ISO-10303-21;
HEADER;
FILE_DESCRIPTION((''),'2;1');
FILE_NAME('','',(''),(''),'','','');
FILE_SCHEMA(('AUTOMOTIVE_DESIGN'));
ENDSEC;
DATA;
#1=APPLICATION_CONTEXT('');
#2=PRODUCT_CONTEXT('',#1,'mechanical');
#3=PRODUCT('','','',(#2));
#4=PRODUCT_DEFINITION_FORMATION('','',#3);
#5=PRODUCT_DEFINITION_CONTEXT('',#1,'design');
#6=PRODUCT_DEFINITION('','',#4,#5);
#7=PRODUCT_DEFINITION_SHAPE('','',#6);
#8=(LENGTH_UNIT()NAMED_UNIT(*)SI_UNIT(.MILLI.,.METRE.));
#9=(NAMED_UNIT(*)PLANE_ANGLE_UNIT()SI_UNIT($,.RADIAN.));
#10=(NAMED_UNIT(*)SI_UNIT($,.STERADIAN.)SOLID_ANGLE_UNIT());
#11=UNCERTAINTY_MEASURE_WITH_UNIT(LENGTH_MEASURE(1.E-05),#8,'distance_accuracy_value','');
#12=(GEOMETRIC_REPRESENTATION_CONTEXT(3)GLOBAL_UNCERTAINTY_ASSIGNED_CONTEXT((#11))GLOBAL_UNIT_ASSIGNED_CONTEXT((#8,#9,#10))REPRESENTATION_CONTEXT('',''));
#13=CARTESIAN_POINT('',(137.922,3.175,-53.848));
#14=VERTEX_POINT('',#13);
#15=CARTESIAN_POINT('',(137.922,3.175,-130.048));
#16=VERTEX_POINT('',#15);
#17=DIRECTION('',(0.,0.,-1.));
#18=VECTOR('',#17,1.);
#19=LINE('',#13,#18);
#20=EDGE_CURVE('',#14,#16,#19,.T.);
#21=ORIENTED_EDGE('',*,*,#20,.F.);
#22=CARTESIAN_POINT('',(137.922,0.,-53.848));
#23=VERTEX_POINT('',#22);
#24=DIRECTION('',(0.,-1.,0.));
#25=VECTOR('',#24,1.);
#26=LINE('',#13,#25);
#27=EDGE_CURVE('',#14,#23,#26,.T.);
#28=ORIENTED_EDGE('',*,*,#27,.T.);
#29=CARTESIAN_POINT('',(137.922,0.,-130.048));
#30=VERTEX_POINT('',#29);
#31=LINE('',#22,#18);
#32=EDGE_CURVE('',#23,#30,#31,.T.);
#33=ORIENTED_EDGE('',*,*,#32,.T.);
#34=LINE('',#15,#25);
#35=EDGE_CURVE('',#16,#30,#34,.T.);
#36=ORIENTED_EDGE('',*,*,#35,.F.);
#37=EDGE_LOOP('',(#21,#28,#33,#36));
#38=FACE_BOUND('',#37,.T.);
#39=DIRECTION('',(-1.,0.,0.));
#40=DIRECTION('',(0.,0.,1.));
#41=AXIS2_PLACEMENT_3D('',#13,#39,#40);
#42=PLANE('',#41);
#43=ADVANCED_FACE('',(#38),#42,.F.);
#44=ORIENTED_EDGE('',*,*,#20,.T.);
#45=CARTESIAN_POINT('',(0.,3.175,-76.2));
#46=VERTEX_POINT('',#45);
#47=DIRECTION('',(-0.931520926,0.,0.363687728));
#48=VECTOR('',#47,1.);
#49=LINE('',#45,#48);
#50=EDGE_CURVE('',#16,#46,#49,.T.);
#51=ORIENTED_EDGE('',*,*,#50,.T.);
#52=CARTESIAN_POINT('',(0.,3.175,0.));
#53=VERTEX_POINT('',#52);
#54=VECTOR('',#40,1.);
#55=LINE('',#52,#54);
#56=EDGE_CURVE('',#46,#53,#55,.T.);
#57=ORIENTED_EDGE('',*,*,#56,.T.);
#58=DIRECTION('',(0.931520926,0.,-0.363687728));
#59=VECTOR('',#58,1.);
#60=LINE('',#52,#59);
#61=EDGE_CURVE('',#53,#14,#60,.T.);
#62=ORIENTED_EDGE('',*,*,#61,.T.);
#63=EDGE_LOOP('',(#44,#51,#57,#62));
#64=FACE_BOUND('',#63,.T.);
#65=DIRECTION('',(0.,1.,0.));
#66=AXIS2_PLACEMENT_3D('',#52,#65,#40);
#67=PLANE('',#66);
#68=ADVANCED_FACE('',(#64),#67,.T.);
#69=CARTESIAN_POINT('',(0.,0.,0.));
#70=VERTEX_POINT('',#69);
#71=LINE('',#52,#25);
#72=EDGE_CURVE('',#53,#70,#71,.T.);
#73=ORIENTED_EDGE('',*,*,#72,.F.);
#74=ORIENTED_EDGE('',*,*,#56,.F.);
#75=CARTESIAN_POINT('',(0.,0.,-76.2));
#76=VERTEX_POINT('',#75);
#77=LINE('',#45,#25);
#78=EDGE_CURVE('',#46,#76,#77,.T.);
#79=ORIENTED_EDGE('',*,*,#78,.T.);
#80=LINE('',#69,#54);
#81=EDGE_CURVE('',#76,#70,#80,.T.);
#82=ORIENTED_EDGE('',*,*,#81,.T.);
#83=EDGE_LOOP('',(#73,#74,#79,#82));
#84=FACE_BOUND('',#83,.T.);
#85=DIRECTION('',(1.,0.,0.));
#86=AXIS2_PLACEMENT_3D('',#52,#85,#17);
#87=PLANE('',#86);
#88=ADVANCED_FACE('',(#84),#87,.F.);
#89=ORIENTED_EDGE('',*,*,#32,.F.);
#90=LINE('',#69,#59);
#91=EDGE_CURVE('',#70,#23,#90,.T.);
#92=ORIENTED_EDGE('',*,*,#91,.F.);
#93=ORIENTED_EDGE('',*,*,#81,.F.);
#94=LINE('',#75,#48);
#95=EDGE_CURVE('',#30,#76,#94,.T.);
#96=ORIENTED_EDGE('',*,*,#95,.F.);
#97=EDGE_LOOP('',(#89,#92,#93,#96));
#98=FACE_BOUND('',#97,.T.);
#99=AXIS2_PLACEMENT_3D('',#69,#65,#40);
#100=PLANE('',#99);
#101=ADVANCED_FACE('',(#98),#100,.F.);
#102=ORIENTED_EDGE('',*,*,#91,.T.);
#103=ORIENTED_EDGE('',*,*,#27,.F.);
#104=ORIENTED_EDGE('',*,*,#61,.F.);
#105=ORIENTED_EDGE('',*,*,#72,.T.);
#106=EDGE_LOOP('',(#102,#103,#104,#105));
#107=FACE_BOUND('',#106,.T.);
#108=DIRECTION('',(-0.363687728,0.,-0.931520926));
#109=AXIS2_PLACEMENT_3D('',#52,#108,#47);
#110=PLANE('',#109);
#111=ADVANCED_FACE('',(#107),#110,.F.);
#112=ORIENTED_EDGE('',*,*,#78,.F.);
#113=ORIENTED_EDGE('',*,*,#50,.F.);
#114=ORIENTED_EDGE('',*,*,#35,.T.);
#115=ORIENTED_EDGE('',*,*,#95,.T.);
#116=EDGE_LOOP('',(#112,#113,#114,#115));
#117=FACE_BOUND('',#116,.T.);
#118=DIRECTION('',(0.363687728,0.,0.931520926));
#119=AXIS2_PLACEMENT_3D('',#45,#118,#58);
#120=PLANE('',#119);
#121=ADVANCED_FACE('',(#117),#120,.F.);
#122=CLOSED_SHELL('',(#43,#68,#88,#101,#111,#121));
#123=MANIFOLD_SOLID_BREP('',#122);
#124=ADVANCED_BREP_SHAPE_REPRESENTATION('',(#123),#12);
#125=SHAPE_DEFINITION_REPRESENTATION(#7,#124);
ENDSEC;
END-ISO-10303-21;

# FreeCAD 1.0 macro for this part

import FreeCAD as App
import Part
import Sketcher

V = App.Vector
Q = App.Units.Quantity

doc = App.newDocument("Part")
body = doc.addObject("PartDesign::Body", "Body")

# Sketch on XZ plane
sketch1 = body.newObject("Sketcher::SketchObject", "Sketch")
sketch1.AttachmentSupport = (doc.getObject("XZ_Plane"), [""])
sketch1.MapMode = "FlatFace"
sketch1.addGeometry(Part.LineSegment(V(0, -76, 0), V(0, 0, 0)), False)
sketch1.addGeometry(Part.LineSegment(V(0, 0, 0), V(138, -54, 0)), False)
sketch1.addGeometry(Part.LineSegment(V(138, -54, 0), V(138, -130, 0)), False)
sketch1.addGeometry(Part.LineSegment(V(138, -130, 0), V(0, -76, 0)), False)
sketch1.addConstraint(Sketcher.Constraint("Coincident", 0, 2, 1, 1))
sketch1.addConstraint(Sketcher.Constraint("Coincident", 1, 2, 2, 1))
sketch1.addConstraint(Sketcher.Constraint("Coincident", 2, 2, 3, 1))
sketch1.addConstraint(Sketcher.Constraint("Coincident", 3, 2, 0, 1))
sketch1.addConstraint(Sketcher.Constraint("Vertical", 0))
sketch1.addConstraint(Sketcher.Constraint("Vertical", 2))
sketch1.addConstraint(Sketcher.Constraint("Coincident", 0, 2, -1, 1))
sketch1.addConstraint(Sketcher.Constraint("Parallel", 1, 3))
sketch1.addConstraint(Sketcher.Constraint("DistanceY", 0, 1, 0, 2, Q("3 in")))
sketch1.addConstraint(Sketcher.Constraint("DistanceX", -1, 1, 1, 2, Q("5.43 in")))
sketch1.addConstraint(Sketcher.Constraint("DistanceY", 1, 2, -1, 1, Q("2.12 in")))
pad1 = body.newObject("PartDesign::Pad", "Pad")
pad1.Profile = sketch1
pad1.Length = Q("0.125 in")
pad1.Reversed = True

doc.recompute()
